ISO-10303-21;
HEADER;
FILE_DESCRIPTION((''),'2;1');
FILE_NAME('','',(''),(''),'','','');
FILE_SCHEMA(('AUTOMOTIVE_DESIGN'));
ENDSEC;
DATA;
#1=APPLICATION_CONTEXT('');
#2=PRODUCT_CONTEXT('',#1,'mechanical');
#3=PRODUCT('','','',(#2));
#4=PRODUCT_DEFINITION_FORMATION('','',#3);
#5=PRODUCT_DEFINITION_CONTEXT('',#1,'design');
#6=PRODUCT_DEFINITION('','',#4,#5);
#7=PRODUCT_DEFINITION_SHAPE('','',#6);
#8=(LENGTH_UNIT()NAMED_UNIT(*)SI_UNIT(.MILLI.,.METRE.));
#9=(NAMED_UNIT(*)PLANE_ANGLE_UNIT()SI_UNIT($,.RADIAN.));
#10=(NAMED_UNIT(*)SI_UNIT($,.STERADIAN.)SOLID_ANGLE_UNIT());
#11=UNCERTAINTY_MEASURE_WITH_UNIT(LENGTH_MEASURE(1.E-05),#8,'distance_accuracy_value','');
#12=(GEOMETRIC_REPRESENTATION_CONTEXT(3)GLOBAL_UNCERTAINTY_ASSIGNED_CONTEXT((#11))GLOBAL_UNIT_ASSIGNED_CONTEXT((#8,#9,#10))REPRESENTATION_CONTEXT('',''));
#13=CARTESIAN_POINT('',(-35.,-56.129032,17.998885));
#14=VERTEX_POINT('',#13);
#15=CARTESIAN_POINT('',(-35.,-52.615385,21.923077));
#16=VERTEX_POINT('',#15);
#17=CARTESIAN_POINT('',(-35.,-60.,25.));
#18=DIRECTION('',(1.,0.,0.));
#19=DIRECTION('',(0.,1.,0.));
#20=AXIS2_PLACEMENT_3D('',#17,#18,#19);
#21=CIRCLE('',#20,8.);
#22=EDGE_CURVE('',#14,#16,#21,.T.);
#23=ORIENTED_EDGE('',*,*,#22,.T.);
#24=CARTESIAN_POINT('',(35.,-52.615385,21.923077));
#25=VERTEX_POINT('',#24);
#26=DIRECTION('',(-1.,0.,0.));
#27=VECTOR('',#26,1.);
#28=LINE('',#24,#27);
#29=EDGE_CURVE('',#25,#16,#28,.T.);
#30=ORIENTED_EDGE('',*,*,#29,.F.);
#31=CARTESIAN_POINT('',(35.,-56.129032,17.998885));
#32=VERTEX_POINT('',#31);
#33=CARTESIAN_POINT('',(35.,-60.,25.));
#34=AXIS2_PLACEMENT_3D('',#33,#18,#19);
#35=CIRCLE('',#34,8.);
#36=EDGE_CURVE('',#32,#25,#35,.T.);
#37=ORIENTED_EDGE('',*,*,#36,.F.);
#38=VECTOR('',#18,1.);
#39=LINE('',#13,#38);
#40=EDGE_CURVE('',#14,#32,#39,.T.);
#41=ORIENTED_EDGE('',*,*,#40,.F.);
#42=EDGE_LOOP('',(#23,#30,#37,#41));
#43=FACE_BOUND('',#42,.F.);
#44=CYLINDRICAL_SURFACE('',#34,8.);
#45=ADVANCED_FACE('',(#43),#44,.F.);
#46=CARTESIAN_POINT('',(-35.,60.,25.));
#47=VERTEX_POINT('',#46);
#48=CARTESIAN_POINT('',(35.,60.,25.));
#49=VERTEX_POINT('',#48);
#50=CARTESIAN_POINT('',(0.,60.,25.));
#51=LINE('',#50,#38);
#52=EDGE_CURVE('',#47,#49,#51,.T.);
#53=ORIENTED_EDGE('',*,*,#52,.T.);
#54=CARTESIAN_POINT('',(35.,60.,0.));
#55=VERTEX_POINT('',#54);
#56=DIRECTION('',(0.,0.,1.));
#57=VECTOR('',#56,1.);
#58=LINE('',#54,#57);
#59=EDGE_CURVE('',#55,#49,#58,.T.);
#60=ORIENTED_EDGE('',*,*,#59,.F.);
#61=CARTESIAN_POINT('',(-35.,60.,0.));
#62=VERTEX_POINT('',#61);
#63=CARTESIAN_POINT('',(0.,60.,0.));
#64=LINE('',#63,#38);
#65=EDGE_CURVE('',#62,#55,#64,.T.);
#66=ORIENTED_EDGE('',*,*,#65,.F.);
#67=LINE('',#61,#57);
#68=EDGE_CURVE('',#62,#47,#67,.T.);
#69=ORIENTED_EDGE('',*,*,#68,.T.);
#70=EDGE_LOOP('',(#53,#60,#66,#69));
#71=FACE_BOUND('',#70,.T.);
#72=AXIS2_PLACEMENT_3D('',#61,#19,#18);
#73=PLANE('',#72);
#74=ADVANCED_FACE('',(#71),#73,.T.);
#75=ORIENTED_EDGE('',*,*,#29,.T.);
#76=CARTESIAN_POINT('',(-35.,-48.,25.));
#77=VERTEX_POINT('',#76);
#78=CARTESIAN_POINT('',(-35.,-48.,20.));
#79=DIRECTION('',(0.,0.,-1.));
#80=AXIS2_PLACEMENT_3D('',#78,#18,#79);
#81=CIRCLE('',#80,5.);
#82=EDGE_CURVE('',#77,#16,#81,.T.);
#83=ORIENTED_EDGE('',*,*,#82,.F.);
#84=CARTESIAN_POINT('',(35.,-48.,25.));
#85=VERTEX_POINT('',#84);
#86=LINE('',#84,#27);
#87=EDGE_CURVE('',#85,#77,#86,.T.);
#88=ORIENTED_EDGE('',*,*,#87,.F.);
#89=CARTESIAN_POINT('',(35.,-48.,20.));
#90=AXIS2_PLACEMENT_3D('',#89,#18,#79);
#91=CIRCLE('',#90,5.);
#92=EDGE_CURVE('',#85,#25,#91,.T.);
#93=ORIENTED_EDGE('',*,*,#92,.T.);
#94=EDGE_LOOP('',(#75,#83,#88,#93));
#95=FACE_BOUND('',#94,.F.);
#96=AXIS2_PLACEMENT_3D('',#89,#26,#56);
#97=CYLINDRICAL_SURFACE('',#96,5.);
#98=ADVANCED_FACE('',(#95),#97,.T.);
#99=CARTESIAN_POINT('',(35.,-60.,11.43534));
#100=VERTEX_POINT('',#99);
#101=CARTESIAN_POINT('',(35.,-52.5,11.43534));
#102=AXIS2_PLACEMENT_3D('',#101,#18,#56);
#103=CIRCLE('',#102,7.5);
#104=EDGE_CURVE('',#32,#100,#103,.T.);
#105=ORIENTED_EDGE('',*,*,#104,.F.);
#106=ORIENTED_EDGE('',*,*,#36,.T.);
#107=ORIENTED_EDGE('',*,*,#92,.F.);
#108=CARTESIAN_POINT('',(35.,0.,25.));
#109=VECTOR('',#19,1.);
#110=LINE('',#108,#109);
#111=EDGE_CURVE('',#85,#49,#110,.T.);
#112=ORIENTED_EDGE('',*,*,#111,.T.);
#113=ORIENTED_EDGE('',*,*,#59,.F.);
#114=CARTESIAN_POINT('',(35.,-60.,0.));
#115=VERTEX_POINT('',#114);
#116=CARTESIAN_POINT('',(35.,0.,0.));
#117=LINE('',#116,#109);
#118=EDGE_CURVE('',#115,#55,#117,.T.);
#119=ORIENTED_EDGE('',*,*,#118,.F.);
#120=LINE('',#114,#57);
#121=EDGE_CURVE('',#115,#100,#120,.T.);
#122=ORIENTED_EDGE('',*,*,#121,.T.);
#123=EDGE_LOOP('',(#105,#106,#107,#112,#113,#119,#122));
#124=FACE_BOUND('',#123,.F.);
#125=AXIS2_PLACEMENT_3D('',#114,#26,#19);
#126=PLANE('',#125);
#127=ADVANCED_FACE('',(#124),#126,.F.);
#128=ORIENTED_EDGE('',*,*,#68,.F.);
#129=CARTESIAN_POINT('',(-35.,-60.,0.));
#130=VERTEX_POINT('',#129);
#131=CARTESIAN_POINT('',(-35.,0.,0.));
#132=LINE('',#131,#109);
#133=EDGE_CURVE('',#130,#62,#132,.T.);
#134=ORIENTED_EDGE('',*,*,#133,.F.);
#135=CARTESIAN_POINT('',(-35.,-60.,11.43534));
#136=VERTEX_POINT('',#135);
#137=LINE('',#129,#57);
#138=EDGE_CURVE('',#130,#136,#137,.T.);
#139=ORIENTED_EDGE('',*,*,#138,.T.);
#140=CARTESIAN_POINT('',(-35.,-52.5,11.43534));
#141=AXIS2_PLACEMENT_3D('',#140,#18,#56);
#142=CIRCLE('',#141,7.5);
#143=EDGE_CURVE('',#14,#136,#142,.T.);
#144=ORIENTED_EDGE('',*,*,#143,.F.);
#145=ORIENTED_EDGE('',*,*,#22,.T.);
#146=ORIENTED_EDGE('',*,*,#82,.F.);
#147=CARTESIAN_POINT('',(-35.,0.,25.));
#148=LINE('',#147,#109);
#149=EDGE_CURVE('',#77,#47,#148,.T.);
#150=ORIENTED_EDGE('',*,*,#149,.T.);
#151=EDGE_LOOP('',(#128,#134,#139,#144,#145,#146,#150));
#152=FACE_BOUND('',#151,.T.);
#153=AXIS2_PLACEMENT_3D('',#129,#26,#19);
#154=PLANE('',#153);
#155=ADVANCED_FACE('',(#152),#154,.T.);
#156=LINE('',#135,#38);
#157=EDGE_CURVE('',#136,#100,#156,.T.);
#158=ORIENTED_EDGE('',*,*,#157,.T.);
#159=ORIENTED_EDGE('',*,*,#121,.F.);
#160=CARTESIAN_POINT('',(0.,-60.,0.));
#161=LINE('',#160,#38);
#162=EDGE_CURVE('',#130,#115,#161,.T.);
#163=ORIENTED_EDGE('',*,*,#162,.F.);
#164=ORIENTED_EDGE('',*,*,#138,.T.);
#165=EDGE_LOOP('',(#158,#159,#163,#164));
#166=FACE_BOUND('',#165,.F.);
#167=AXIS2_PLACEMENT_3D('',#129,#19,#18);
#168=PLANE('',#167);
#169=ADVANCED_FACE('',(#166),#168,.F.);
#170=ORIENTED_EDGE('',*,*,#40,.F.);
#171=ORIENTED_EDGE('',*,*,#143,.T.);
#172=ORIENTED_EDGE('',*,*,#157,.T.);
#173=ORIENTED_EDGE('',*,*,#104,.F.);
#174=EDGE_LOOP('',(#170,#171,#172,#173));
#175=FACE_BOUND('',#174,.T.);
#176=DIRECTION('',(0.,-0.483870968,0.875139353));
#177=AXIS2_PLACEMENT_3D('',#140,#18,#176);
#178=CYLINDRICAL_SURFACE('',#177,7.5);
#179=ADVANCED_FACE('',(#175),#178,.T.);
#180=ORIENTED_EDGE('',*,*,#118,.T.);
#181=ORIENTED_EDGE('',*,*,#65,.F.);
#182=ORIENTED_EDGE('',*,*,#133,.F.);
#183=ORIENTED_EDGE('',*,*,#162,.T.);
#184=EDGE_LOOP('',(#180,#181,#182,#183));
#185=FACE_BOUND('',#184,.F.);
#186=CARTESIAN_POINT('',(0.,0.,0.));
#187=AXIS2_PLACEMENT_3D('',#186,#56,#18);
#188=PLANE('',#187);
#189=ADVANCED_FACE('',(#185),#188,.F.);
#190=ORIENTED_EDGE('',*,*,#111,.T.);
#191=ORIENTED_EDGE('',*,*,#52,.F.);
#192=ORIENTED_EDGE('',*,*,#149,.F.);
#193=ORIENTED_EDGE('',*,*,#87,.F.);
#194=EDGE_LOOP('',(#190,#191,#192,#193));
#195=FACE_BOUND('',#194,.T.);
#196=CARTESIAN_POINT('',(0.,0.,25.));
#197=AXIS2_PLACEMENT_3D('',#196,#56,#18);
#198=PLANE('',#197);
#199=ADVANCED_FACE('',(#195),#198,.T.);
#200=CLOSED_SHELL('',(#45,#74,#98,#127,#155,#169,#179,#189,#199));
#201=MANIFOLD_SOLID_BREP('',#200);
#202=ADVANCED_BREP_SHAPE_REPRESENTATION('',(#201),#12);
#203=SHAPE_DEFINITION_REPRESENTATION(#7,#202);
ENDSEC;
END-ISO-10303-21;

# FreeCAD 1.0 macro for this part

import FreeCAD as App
import Part
import Sketcher
from FreeCAD import Vector


def edges_at(feature, points):
    """Names of the edges that pass closest to the given points."""
    edges = feature.Shape.Edges
    near = lambda p: min(range(len(edges)), key=lambda i: edges[i].distToShape(Part.Vertex(*p))[0])
    return sorted({f"Edge{near(p) + 1}" for p in points})


def add_polygon(sketch, points):
    """Adds a closed chain of lines whose ends are joined by coincident constraints."""
    first, n = sketch.GeometryCount, len(points)
    for a, b in zip(points, points[1:] + points[:1]):
        sketch.addGeometry(Part.LineSegment(App.Vector(*a, 0), App.Vector(*b, 0)), False)
    for i in range(n):
        sketch.addConstraint(Sketcher.Constraint("Coincident", first + i, 2, first + (i + 1) % n, 1))

doc = App.newDocument("Part")
body = doc.addObject("PartDesign::Body", "Body")

# Sketch on XY plane
sketch1 = body.newObject("Sketcher::SketchObject", "Sketch")
sketch1.AttachmentSupport = (doc.getObject("XY_Plane"), [""])
sketch1.MapMode = "FlatFace"
add_polygon(sketch1, [(-35, 60), (-35, -60), (35, -60), (35, 60)])  # lines 0-3
sketch1.addConstraint(Sketcher.Constraint("Vertical", 0))
sketch1.addConstraint(Sketcher.Constraint("Horizontal", 1))
sketch1.addConstraint(Sketcher.Constraint("Vertical", 2))
sketch1.addConstraint(Sketcher.Constraint("Horizontal", 3))
sketch1.addConstraint(Sketcher.Constraint("Symmetric", 0, 2, 2, 2, -1, 1))
sketch1.addConstraint(Sketcher.Constraint("DistanceX", 1, 1, 1, 2, 70.0))
sketch1.addConstraint(Sketcher.Constraint("DistanceY", 0, 2, 0, 1, 120.0))
pad1 = body.newObject("PartDesign::Pad", "Pad")
pad1.Profile = sketch1
pad1.Length = 25

# Sketch on YZ plane
sketch2 = body.newObject("Sketcher::SketchObject", "Sketch001")
sketch2.AttachmentSupport = (doc.getObject("YZ_Plane"), [""])
sketch2.MapMode = "FlatFace"
sketch2.AttachmentOffset = App.Placement(Vector(0, 0, 35), App.Rotation())
sketch2.addGeometry(Part.Circle(Vector(-60, 25, 0), Vector(0, 0, 1), 8), False)
sketch2.addConstraint(Sketcher.Constraint("Diameter", 0, 16.0))
sketch2.addConstraint(Sketcher.Constraint("DistanceX", 0, 3, -1, 1, 60.0))
sketch2.addConstraint(Sketcher.Constraint("DistanceY", -1, 1, 0, 3, 25.0))
pocket1 = body.newObject("PartDesign::Pocket", "Pocket")
pocket1.Profile = sketch2
pocket1.Type = "ThroughAll"
doc.recompute()

fillet = body.newObject("PartDesign::Fillet", "Fillet")
fillet.Base = (pocket1, edges_at(pocket1, [(0, -52, 25)]))
fillet.Radius = 5
doc.recompute()

fillet2 = body.newObject("PartDesign::Fillet", "Fillet001")
fillet2.Base = (fillet, edges_at(fillet, [(0, -60, 17)]))
fillet2.Radius = 7.5

doc.recompute()
